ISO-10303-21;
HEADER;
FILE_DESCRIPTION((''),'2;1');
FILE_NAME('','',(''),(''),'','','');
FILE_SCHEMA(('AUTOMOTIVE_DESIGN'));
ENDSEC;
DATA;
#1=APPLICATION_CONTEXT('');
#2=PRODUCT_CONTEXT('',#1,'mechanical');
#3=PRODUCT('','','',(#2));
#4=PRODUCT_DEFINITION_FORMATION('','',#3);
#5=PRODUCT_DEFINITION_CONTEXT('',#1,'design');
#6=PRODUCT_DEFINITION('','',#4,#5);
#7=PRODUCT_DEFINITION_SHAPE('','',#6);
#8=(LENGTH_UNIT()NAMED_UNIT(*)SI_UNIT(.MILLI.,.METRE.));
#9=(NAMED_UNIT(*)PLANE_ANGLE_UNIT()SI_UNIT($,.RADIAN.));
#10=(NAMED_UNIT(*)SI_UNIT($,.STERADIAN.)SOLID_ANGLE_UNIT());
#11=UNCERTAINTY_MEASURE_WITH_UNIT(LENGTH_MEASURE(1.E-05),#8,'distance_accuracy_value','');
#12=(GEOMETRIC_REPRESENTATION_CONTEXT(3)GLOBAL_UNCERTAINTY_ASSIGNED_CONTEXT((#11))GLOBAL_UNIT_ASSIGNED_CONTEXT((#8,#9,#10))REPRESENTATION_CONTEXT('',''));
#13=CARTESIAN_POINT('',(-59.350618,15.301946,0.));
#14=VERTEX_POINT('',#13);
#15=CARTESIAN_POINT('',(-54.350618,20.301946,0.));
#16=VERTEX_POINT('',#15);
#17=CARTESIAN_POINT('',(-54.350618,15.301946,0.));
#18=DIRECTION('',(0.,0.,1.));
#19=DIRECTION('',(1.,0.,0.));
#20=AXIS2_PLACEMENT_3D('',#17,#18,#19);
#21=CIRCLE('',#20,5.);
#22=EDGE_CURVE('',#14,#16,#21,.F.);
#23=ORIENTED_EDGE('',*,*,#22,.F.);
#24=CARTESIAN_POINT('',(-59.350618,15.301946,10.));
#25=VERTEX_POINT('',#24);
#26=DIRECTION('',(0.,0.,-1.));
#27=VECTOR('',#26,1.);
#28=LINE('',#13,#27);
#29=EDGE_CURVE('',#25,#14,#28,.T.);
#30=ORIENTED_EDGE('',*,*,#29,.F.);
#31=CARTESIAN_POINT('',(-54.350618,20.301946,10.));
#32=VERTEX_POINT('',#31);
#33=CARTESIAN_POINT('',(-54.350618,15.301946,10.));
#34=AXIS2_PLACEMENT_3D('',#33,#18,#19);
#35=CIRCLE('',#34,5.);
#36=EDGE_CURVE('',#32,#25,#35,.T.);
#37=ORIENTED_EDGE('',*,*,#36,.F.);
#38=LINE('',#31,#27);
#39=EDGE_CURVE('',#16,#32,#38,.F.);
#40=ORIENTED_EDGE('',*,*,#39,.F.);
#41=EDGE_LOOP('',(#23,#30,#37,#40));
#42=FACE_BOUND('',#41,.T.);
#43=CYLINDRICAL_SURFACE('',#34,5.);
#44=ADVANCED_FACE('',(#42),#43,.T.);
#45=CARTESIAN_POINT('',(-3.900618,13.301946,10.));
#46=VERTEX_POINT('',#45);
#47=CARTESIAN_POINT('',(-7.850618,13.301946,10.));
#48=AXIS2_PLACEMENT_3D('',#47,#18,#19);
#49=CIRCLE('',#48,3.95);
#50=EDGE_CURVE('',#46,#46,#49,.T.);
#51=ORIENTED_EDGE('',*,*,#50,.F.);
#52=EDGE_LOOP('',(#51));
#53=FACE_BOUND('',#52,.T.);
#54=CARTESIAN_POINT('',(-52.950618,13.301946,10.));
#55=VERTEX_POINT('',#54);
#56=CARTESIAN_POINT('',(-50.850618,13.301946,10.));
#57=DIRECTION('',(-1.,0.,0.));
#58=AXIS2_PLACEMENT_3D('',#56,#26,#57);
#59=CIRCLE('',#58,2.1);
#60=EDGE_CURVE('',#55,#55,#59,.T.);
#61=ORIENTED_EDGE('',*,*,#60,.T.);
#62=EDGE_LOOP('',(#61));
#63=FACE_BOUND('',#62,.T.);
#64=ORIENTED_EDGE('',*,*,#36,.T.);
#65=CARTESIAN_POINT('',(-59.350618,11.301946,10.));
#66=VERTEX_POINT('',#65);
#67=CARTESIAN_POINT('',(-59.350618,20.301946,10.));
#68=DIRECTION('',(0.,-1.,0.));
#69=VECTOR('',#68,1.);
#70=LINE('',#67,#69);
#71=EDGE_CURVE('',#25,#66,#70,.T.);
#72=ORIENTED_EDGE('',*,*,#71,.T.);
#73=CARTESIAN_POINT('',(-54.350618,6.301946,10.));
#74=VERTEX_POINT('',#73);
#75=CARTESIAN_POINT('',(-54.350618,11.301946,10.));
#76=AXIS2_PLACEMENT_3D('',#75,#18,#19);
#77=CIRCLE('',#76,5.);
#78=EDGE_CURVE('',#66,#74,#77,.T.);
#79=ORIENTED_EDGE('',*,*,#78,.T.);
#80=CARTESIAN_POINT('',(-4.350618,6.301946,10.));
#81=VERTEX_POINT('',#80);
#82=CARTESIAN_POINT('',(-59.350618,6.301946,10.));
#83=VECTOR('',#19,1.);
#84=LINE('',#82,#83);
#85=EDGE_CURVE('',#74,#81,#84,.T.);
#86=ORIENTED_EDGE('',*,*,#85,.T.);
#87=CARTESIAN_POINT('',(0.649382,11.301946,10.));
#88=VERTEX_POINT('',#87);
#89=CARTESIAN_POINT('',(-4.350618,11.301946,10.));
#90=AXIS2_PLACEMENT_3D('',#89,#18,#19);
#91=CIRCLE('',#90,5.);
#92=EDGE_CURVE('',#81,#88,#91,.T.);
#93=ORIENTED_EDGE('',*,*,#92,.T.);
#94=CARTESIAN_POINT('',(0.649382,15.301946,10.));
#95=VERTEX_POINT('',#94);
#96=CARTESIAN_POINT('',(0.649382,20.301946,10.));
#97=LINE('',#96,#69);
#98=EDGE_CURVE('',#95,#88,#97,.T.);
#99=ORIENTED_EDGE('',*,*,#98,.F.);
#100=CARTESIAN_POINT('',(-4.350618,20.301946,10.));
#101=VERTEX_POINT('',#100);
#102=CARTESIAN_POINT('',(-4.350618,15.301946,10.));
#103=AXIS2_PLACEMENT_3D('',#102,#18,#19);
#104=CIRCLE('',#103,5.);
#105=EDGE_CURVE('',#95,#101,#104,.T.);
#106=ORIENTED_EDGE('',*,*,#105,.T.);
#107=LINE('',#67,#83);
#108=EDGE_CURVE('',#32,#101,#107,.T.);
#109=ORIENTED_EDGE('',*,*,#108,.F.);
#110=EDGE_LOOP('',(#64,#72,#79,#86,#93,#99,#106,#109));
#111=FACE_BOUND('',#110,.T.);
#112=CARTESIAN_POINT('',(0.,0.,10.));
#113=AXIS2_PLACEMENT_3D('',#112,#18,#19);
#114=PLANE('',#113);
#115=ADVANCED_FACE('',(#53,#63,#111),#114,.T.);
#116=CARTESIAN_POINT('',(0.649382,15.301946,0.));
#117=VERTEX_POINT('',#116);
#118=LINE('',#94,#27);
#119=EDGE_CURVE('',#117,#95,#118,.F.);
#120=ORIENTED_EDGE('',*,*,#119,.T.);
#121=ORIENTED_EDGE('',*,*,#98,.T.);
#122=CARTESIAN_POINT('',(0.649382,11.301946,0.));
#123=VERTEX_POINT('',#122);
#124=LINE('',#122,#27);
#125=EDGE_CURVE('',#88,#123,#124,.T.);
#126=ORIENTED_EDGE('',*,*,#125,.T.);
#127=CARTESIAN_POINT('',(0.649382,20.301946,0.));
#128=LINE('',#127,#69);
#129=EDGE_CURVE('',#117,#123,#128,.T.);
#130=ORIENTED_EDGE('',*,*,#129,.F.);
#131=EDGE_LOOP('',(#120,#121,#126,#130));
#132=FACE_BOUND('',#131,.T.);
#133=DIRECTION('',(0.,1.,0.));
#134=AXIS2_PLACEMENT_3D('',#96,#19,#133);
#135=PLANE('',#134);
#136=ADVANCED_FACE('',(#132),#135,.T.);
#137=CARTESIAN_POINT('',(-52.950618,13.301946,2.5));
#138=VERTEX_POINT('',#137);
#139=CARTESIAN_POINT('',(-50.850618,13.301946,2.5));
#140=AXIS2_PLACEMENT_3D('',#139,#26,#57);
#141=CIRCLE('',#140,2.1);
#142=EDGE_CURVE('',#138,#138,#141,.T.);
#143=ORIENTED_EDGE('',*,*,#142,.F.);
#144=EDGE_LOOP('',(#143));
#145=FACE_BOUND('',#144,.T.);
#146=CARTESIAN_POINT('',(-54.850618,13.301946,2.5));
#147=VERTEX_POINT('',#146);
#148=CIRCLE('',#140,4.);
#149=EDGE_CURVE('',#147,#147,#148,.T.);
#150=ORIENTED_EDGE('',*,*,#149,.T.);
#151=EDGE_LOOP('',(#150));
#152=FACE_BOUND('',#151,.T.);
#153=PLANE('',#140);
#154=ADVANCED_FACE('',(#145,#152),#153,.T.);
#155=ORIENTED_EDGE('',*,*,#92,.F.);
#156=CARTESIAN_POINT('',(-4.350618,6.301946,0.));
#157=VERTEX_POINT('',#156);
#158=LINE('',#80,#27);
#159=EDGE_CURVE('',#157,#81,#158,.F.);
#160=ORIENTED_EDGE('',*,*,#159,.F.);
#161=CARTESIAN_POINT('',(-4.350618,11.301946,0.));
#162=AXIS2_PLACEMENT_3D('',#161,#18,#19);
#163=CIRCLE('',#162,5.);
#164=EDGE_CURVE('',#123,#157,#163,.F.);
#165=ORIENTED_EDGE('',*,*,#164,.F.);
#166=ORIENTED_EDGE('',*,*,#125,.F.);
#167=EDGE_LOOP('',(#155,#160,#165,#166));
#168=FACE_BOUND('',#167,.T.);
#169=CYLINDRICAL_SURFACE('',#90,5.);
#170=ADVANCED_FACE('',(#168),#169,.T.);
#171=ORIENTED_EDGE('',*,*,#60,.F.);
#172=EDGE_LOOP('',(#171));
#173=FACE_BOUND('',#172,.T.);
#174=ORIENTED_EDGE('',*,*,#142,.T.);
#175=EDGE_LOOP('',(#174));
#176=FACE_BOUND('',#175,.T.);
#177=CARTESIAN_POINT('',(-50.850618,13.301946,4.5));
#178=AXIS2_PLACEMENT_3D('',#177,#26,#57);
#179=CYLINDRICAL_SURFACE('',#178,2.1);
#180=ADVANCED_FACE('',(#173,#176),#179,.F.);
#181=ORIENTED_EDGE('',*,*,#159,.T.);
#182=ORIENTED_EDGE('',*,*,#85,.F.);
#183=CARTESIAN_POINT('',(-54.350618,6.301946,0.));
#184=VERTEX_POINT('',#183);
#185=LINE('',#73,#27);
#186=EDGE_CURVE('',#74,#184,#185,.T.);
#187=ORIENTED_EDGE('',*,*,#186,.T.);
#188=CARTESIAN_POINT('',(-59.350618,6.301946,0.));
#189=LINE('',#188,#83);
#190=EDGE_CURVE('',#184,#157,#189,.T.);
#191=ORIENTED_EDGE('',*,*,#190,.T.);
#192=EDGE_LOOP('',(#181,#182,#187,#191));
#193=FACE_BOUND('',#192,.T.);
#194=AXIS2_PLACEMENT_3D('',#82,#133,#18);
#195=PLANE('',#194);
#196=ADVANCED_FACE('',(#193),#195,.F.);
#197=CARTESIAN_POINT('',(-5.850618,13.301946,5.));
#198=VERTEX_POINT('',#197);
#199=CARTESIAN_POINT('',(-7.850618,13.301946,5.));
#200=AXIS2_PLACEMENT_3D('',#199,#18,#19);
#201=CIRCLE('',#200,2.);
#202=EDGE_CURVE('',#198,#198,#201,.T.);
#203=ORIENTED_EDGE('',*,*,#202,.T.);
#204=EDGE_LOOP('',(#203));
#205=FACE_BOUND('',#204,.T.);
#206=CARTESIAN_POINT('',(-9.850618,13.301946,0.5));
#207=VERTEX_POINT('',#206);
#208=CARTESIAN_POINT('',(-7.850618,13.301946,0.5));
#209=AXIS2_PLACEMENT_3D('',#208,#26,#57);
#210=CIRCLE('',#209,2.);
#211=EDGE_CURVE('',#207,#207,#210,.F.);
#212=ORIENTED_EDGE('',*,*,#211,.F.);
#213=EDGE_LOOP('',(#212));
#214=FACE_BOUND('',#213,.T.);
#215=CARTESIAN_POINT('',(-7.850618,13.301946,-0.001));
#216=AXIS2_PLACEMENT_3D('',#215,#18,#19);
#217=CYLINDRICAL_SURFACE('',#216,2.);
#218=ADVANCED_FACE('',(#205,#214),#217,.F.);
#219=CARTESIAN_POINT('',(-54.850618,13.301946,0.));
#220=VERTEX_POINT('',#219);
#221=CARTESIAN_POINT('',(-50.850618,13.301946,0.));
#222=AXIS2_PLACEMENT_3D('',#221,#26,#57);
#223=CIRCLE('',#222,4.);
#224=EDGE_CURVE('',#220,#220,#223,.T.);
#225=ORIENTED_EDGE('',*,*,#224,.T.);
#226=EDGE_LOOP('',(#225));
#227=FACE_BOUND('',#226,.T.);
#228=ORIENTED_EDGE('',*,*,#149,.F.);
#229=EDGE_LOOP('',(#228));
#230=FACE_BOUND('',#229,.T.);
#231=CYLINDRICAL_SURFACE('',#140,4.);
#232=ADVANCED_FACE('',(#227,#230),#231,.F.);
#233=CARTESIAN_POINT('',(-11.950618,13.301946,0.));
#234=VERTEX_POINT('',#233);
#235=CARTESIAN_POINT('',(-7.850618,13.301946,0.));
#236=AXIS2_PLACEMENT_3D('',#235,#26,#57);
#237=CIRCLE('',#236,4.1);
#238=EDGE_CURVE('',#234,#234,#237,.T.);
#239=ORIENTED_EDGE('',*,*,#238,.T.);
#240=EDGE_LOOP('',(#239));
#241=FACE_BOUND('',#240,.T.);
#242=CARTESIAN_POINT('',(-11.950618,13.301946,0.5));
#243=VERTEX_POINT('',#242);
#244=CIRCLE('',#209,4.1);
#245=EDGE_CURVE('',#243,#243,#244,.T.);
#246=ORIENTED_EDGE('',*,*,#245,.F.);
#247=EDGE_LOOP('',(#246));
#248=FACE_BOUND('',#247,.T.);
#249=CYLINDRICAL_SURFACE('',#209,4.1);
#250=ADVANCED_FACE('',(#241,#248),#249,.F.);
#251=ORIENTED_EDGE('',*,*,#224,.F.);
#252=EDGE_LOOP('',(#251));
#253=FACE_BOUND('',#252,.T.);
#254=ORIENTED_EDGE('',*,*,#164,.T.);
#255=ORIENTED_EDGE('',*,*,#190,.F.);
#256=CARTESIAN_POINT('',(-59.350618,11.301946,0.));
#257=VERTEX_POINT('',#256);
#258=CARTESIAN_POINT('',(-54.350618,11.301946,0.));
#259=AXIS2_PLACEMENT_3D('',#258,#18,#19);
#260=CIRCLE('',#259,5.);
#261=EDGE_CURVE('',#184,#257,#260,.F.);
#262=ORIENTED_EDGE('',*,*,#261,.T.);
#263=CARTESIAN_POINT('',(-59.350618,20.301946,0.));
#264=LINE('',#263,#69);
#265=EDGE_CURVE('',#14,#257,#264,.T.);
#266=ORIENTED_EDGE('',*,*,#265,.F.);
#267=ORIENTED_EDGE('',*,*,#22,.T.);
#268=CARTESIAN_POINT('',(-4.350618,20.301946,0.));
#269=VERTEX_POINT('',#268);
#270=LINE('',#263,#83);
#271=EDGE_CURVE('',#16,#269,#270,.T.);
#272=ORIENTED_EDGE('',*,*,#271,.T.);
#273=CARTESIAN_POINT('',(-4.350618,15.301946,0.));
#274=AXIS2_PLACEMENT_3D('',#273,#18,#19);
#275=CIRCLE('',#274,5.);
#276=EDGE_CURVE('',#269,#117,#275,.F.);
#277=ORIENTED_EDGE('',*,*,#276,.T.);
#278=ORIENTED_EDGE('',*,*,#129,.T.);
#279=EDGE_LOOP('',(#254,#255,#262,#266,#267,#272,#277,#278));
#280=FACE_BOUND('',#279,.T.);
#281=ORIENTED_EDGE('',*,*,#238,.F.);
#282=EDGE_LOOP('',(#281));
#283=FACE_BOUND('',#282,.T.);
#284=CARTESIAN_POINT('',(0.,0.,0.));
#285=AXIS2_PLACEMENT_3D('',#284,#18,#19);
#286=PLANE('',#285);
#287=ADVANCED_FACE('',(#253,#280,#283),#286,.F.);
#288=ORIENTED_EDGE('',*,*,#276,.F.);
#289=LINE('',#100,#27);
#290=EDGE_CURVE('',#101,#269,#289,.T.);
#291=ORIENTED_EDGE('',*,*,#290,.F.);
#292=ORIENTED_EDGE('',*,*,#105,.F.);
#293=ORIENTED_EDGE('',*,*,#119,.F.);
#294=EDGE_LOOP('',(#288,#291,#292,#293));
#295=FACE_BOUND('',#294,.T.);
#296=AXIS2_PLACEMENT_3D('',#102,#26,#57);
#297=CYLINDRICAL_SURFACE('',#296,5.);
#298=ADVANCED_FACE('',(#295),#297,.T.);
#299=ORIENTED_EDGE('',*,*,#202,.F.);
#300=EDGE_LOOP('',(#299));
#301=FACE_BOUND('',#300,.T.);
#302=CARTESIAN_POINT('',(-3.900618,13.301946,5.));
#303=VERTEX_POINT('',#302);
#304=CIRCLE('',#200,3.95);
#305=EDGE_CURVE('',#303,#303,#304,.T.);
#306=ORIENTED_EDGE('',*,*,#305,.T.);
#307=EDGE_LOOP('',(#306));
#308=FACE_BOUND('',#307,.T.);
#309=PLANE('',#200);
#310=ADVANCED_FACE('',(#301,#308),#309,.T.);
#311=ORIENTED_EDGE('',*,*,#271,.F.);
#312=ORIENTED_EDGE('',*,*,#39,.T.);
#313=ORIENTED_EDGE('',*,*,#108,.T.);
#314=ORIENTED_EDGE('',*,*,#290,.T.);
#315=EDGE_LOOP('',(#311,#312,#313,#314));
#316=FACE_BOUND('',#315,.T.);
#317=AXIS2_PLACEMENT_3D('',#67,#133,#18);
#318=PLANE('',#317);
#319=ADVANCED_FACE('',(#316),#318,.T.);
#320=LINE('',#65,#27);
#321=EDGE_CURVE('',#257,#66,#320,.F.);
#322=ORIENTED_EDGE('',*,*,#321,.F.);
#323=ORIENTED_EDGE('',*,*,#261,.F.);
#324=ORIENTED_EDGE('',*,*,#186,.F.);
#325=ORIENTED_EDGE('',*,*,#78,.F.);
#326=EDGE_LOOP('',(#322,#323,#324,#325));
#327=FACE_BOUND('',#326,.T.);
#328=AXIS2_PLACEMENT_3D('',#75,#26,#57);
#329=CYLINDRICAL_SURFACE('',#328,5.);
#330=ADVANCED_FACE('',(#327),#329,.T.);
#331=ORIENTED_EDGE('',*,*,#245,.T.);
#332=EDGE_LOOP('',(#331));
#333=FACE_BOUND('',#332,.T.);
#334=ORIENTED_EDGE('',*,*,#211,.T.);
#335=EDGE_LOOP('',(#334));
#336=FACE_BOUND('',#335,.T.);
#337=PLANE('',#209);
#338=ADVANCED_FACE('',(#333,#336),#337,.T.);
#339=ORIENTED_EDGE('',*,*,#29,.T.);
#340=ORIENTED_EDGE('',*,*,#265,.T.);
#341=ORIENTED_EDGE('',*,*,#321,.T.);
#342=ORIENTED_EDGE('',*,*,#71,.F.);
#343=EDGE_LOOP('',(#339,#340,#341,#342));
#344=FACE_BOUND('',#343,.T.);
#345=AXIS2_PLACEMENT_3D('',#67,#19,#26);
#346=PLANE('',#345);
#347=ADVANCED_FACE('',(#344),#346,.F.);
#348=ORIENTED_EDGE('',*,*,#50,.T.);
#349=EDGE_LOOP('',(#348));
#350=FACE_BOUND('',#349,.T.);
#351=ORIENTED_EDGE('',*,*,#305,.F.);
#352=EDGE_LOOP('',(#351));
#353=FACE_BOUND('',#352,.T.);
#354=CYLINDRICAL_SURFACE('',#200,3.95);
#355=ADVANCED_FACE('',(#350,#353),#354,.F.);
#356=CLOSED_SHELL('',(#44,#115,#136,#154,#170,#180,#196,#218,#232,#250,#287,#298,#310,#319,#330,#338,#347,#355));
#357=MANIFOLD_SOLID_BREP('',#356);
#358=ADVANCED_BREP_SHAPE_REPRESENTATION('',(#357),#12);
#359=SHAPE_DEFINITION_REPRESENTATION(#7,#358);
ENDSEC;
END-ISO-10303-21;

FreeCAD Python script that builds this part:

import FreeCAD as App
import Part
import Sketcher
from FreeCAD import Vector
Q = App.Units.Quantity


def edges_at(feature, points):
    """Names of the edges that pass closest to the given points."""
    edges = feature.Shape.Edges
    near = lambda p: min(range(len(edges)), key=lambda i: edges[i].distToShape(Part.Vertex(*p))[0])
    return sorted({f"Edge{near(p) + 1}" for p in points})


def add_polygon(sketch, points):
    """Adds a closed chain of lines whose ends are joined by coincident constraints."""
    first, n = sketch.GeometryCount, len(points)
    for a, b in zip(points, points[1:] + points[:1]):
        sketch.addGeometry(Part.LineSegment(App.Vector(*a, 0), App.Vector(*b, 0)), False)
    for i in range(n):
        sketch.addConstraint(Sketcher.Constraint("Coincident", first + i, 2, first + (i + 1) % n, 1))

doc = App.newDocument("Part")
body = doc.addObject("PartDesign::Body", "Body")

# Sketch on XY plane
sketch1 = doc.addObject("Sketcher::SketchObject", "Sketch")
body.addObject(sketch1)
sketch1.AttachmentSupport = (doc.XY_Plane, [""])
sketch1.MapMode = "FlatFace"
add_polygon(sketch1, [(-59, 20), (-59, 6), (1, 6), (1, 20)])  # lines 0-3
sketch1.addConstraint(Sketcher.Constraint("Vertical", 0))
sketch1.addConstraint(Sketcher.Constraint("Horizontal", 1))
sketch1.addConstraint(Sketcher.Constraint("Vertical", 2))
sketch1.addConstraint(Sketcher.Constraint("Horizontal", 3))
sketch1.addConstraint(Sketcher.Constraint("DistanceX", 1, 1, 1, 2, Q("60 mm")))
sketch1.addConstraint(Sketcher.Constraint("DistanceY", 0, 2, 0, 1, Q("14 mm")))
sketch1.addConstraint(Sketcher.Constraint("DistanceX", 0, 2, -1, 1, Q("59.350618 mm")))
sketch1.addConstraint(Sketcher.Constraint("DistanceY", -1, 1, 0, 2, Q("6.301946 mm")))
pad1 = doc.addObject("PartDesign::Pad", "Pad")
body.addObject(pad1)
pad1.Profile = sketch1
pad1.Length = 10
doc.recompute()

fillet = doc.addObject("PartDesign::Fillet", "Fillet")
body.addObject(fillet)
fillet.Base = (pad1, edges_at(pad1, [(-59.351, 20.302, 5)]))
fillet.Radius = 5
doc.recompute()

fillet2 = doc.addObject("PartDesign::Fillet", "Fillet001")
body.addObject(fillet2)
fillet2.Base = (fillet, edges_at(fillet, [(0.649, 20.302, 5), (0.649, 6.302, 5), (-59.351, 6.302, 5)]))
fillet2.Radius = 5

# Sketch on XY plane
sketch2 = doc.addObject("Sketcher::SketchObject", "Sketch001")
body.addObject(sketch2)
sketch2.AttachmentSupport = (doc.XY_Plane, [""])
sketch2.MapMode = "FlatFace"
sketch2.addGeometry(Part.Circle(Vector(-50.9, 13.3, 0), Vector(0, 0, 1), 4), False)
sketch2.addConstraint(Sketcher.Constraint("Diameter", 0, Q("8 mm")))
sketch2.addConstraint(Sketcher.Constraint("DistanceX", 0, 3, -1, 1, Q("50.850618 mm")))
sketch2.addConstraint(Sketcher.Constraint("DistanceY", -1, 1, 0, 3, Q("13.301946 mm")))
pocket1 = doc.addObject("PartDesign::Pocket", "Pocket")
body.addObject(pocket1)
pocket1.Profile = sketch2
pocket1.Length = 2.5
pocket1.Reversed = True

# Sketch on XY plane
sketch3 = doc.addObject("Sketcher::SketchObject", "Sketch002")
body.addObject(sketch3)
sketch3.AttachmentSupport = (doc.XY_Plane, [""])
sketch3.MapMode = "FlatFace"
sketch3.AttachmentOffset = App.Placement(Vector(0, 0, 2.5), App.Rotation())
sketch3.addGeometry(Part.Circle(Vector(-50.9, 13.3, 0), Vector(0, 0, 1), 2.1), False)
sketch3.addConstraint(Sketcher.Constraint("Diameter", 0, Q("4.2 mm")))
sketch3.addConstraint(Sketcher.Constraint("DistanceX", 0, 3, -1, 1, Q("50.850618 mm")))
sketch3.addConstraint(Sketcher.Constraint("DistanceY", -1, 1, 0, 3, Q("13.301946 mm")))
pocket2 = doc.addObject("PartDesign::Pocket", "Pocket001")
body.addObject(pocket2)
pocket2.Profile = sketch3
pocket2.Length = 2
pocket2.Reversed = True

# Sketch on XY plane
sketch4 = doc.addObject("Sketcher::SketchObject", "Sketch003")
body.addObject(sketch4)
sketch4.AttachmentSupport = (doc.XY_Plane, [""])
sketch4.MapMode = "FlatFace"
sketch4.AttachmentOffset = App.Placement(Vector(0, 0, 10), App.Rotation())
sketch4.addGeometry(Part.Circle(Vector(-7.9, 13.3, 0), Vector(0, 0, 1), 4), False)
sketch4.addConstraint(Sketcher.Constraint("Diameter", 0, Q("7.9 mm")))
sketch4.addConstraint(Sketcher.Constraint("DistanceX", 0, 3, -1, 1, Q("7.850618 mm")))
sketch4.addConstraint(Sketcher.Constraint("DistanceY", -1, 1, 0, 3, Q("13.301946 mm")))
pocket3 = doc.addObject("PartDesign::Pocket", "Pocket002")
body.addObject(pocket3)
pocket3.Profile = sketch4
pocket3.Length = 5

# Sketch on XY plane
sketch5 = doc.addObject("Sketcher::SketchObject", "Sketch004")
body.addObject(sketch5)
sketch5.AttachmentSupport = (doc.XY_Plane, [""])
sketch5.MapMode = "FlatFace"
sketch5.AttachmentOffset = App.Placement(Vector(0, 0, 5), App.Rotation())
sketch5.addGeometry(Part.Circle(Vector(-7.9, 13.3, 0), Vector(0, 0, 1), 2), False)
sketch5.addConstraint(Sketcher.Constraint("Diameter", 0, Q("4 mm")))
sketch5.addConstraint(Sketcher.Constraint("DistanceX", 0, 3, -1, 1, Q("7.850618 mm")))
sketch5.addConstraint(Sketcher.Constraint("DistanceY", -1, 1, 0, 3, Q("13.301946 mm")))
pocket4 = doc.addObject("PartDesign::Pocket", "Pocket003")
body.addObject(pocket4)
pocket4.Profile = sketch5
pocket4.Type = "UpToFirst"

# Sketch on XY plane
sketch6 = doc.addObject("Sketcher::SketchObject", "Sketch005")
body.addObject(sketch6)
sketch6.AttachmentSupport = (doc.XY_Plane, [""])
sketch6.MapMode = "FlatFace"
sketch6.AttachmentOffset = App.Placement(Vector(0, 0, 4.5), App.Rotation())
sketch6.addGeometry(Part.Circle(Vector(-50.9, 13.3, 0), Vector(0, 0, 1), 2.1), False)
sketch6.addConstraint(Sketcher.Constraint("Diameter", 0, Q("4.2 mm")))
sketch6.addConstraint(Sketcher.Constraint("DistanceX", 0, 3, -1, 1, Q("50.850618 mm")))
sketch6.addConstraint(Sketcher.Constraint("DistanceY", -1, 1, 0, 3, Q("13.301946 mm")))
pocket5 = doc.addObject("PartDesign::Pocket", "Pocket004")
body.addObject(pocket5)
pocket5.Profile = sketch6
pocket5.Type = "ThroughAll"
pocket5.Reversed = True

# Sketch on XY plane
sketch7 = doc.addObject("Sketcher::SketchObject", "Sketch006")
body.addObject(sketch7)
sketch7.AttachmentSupport = (doc.XY_Plane, [""])
sketch7.MapMode = "FlatFace"
sketch7.addGeometry(Part.Circle(Vector(-7.9, 13.3, 0), Vector(0, 0, 1), 4.1), False)
sketch7.addConstraint(Sketcher.Constraint("Diameter", 0, Q("8.2 mm")))
sketch7.addConstraint(Sketcher.Constraint("DistanceX", 0, 3, -1, 1, Q("7.850618 mm")))
sketch7.addConstraint(Sketcher.Constraint("DistanceY", -1, 1, 0, 3, Q("13.301946 mm")))
pocket6 = doc.addObject("PartDesign::Pocket", "Pocket005")
body.addObject(pocket6)
pocket6.Profile = sketch7
pocket6.Length = 0.5
pocket6.Reversed = True

doc.recompute()
